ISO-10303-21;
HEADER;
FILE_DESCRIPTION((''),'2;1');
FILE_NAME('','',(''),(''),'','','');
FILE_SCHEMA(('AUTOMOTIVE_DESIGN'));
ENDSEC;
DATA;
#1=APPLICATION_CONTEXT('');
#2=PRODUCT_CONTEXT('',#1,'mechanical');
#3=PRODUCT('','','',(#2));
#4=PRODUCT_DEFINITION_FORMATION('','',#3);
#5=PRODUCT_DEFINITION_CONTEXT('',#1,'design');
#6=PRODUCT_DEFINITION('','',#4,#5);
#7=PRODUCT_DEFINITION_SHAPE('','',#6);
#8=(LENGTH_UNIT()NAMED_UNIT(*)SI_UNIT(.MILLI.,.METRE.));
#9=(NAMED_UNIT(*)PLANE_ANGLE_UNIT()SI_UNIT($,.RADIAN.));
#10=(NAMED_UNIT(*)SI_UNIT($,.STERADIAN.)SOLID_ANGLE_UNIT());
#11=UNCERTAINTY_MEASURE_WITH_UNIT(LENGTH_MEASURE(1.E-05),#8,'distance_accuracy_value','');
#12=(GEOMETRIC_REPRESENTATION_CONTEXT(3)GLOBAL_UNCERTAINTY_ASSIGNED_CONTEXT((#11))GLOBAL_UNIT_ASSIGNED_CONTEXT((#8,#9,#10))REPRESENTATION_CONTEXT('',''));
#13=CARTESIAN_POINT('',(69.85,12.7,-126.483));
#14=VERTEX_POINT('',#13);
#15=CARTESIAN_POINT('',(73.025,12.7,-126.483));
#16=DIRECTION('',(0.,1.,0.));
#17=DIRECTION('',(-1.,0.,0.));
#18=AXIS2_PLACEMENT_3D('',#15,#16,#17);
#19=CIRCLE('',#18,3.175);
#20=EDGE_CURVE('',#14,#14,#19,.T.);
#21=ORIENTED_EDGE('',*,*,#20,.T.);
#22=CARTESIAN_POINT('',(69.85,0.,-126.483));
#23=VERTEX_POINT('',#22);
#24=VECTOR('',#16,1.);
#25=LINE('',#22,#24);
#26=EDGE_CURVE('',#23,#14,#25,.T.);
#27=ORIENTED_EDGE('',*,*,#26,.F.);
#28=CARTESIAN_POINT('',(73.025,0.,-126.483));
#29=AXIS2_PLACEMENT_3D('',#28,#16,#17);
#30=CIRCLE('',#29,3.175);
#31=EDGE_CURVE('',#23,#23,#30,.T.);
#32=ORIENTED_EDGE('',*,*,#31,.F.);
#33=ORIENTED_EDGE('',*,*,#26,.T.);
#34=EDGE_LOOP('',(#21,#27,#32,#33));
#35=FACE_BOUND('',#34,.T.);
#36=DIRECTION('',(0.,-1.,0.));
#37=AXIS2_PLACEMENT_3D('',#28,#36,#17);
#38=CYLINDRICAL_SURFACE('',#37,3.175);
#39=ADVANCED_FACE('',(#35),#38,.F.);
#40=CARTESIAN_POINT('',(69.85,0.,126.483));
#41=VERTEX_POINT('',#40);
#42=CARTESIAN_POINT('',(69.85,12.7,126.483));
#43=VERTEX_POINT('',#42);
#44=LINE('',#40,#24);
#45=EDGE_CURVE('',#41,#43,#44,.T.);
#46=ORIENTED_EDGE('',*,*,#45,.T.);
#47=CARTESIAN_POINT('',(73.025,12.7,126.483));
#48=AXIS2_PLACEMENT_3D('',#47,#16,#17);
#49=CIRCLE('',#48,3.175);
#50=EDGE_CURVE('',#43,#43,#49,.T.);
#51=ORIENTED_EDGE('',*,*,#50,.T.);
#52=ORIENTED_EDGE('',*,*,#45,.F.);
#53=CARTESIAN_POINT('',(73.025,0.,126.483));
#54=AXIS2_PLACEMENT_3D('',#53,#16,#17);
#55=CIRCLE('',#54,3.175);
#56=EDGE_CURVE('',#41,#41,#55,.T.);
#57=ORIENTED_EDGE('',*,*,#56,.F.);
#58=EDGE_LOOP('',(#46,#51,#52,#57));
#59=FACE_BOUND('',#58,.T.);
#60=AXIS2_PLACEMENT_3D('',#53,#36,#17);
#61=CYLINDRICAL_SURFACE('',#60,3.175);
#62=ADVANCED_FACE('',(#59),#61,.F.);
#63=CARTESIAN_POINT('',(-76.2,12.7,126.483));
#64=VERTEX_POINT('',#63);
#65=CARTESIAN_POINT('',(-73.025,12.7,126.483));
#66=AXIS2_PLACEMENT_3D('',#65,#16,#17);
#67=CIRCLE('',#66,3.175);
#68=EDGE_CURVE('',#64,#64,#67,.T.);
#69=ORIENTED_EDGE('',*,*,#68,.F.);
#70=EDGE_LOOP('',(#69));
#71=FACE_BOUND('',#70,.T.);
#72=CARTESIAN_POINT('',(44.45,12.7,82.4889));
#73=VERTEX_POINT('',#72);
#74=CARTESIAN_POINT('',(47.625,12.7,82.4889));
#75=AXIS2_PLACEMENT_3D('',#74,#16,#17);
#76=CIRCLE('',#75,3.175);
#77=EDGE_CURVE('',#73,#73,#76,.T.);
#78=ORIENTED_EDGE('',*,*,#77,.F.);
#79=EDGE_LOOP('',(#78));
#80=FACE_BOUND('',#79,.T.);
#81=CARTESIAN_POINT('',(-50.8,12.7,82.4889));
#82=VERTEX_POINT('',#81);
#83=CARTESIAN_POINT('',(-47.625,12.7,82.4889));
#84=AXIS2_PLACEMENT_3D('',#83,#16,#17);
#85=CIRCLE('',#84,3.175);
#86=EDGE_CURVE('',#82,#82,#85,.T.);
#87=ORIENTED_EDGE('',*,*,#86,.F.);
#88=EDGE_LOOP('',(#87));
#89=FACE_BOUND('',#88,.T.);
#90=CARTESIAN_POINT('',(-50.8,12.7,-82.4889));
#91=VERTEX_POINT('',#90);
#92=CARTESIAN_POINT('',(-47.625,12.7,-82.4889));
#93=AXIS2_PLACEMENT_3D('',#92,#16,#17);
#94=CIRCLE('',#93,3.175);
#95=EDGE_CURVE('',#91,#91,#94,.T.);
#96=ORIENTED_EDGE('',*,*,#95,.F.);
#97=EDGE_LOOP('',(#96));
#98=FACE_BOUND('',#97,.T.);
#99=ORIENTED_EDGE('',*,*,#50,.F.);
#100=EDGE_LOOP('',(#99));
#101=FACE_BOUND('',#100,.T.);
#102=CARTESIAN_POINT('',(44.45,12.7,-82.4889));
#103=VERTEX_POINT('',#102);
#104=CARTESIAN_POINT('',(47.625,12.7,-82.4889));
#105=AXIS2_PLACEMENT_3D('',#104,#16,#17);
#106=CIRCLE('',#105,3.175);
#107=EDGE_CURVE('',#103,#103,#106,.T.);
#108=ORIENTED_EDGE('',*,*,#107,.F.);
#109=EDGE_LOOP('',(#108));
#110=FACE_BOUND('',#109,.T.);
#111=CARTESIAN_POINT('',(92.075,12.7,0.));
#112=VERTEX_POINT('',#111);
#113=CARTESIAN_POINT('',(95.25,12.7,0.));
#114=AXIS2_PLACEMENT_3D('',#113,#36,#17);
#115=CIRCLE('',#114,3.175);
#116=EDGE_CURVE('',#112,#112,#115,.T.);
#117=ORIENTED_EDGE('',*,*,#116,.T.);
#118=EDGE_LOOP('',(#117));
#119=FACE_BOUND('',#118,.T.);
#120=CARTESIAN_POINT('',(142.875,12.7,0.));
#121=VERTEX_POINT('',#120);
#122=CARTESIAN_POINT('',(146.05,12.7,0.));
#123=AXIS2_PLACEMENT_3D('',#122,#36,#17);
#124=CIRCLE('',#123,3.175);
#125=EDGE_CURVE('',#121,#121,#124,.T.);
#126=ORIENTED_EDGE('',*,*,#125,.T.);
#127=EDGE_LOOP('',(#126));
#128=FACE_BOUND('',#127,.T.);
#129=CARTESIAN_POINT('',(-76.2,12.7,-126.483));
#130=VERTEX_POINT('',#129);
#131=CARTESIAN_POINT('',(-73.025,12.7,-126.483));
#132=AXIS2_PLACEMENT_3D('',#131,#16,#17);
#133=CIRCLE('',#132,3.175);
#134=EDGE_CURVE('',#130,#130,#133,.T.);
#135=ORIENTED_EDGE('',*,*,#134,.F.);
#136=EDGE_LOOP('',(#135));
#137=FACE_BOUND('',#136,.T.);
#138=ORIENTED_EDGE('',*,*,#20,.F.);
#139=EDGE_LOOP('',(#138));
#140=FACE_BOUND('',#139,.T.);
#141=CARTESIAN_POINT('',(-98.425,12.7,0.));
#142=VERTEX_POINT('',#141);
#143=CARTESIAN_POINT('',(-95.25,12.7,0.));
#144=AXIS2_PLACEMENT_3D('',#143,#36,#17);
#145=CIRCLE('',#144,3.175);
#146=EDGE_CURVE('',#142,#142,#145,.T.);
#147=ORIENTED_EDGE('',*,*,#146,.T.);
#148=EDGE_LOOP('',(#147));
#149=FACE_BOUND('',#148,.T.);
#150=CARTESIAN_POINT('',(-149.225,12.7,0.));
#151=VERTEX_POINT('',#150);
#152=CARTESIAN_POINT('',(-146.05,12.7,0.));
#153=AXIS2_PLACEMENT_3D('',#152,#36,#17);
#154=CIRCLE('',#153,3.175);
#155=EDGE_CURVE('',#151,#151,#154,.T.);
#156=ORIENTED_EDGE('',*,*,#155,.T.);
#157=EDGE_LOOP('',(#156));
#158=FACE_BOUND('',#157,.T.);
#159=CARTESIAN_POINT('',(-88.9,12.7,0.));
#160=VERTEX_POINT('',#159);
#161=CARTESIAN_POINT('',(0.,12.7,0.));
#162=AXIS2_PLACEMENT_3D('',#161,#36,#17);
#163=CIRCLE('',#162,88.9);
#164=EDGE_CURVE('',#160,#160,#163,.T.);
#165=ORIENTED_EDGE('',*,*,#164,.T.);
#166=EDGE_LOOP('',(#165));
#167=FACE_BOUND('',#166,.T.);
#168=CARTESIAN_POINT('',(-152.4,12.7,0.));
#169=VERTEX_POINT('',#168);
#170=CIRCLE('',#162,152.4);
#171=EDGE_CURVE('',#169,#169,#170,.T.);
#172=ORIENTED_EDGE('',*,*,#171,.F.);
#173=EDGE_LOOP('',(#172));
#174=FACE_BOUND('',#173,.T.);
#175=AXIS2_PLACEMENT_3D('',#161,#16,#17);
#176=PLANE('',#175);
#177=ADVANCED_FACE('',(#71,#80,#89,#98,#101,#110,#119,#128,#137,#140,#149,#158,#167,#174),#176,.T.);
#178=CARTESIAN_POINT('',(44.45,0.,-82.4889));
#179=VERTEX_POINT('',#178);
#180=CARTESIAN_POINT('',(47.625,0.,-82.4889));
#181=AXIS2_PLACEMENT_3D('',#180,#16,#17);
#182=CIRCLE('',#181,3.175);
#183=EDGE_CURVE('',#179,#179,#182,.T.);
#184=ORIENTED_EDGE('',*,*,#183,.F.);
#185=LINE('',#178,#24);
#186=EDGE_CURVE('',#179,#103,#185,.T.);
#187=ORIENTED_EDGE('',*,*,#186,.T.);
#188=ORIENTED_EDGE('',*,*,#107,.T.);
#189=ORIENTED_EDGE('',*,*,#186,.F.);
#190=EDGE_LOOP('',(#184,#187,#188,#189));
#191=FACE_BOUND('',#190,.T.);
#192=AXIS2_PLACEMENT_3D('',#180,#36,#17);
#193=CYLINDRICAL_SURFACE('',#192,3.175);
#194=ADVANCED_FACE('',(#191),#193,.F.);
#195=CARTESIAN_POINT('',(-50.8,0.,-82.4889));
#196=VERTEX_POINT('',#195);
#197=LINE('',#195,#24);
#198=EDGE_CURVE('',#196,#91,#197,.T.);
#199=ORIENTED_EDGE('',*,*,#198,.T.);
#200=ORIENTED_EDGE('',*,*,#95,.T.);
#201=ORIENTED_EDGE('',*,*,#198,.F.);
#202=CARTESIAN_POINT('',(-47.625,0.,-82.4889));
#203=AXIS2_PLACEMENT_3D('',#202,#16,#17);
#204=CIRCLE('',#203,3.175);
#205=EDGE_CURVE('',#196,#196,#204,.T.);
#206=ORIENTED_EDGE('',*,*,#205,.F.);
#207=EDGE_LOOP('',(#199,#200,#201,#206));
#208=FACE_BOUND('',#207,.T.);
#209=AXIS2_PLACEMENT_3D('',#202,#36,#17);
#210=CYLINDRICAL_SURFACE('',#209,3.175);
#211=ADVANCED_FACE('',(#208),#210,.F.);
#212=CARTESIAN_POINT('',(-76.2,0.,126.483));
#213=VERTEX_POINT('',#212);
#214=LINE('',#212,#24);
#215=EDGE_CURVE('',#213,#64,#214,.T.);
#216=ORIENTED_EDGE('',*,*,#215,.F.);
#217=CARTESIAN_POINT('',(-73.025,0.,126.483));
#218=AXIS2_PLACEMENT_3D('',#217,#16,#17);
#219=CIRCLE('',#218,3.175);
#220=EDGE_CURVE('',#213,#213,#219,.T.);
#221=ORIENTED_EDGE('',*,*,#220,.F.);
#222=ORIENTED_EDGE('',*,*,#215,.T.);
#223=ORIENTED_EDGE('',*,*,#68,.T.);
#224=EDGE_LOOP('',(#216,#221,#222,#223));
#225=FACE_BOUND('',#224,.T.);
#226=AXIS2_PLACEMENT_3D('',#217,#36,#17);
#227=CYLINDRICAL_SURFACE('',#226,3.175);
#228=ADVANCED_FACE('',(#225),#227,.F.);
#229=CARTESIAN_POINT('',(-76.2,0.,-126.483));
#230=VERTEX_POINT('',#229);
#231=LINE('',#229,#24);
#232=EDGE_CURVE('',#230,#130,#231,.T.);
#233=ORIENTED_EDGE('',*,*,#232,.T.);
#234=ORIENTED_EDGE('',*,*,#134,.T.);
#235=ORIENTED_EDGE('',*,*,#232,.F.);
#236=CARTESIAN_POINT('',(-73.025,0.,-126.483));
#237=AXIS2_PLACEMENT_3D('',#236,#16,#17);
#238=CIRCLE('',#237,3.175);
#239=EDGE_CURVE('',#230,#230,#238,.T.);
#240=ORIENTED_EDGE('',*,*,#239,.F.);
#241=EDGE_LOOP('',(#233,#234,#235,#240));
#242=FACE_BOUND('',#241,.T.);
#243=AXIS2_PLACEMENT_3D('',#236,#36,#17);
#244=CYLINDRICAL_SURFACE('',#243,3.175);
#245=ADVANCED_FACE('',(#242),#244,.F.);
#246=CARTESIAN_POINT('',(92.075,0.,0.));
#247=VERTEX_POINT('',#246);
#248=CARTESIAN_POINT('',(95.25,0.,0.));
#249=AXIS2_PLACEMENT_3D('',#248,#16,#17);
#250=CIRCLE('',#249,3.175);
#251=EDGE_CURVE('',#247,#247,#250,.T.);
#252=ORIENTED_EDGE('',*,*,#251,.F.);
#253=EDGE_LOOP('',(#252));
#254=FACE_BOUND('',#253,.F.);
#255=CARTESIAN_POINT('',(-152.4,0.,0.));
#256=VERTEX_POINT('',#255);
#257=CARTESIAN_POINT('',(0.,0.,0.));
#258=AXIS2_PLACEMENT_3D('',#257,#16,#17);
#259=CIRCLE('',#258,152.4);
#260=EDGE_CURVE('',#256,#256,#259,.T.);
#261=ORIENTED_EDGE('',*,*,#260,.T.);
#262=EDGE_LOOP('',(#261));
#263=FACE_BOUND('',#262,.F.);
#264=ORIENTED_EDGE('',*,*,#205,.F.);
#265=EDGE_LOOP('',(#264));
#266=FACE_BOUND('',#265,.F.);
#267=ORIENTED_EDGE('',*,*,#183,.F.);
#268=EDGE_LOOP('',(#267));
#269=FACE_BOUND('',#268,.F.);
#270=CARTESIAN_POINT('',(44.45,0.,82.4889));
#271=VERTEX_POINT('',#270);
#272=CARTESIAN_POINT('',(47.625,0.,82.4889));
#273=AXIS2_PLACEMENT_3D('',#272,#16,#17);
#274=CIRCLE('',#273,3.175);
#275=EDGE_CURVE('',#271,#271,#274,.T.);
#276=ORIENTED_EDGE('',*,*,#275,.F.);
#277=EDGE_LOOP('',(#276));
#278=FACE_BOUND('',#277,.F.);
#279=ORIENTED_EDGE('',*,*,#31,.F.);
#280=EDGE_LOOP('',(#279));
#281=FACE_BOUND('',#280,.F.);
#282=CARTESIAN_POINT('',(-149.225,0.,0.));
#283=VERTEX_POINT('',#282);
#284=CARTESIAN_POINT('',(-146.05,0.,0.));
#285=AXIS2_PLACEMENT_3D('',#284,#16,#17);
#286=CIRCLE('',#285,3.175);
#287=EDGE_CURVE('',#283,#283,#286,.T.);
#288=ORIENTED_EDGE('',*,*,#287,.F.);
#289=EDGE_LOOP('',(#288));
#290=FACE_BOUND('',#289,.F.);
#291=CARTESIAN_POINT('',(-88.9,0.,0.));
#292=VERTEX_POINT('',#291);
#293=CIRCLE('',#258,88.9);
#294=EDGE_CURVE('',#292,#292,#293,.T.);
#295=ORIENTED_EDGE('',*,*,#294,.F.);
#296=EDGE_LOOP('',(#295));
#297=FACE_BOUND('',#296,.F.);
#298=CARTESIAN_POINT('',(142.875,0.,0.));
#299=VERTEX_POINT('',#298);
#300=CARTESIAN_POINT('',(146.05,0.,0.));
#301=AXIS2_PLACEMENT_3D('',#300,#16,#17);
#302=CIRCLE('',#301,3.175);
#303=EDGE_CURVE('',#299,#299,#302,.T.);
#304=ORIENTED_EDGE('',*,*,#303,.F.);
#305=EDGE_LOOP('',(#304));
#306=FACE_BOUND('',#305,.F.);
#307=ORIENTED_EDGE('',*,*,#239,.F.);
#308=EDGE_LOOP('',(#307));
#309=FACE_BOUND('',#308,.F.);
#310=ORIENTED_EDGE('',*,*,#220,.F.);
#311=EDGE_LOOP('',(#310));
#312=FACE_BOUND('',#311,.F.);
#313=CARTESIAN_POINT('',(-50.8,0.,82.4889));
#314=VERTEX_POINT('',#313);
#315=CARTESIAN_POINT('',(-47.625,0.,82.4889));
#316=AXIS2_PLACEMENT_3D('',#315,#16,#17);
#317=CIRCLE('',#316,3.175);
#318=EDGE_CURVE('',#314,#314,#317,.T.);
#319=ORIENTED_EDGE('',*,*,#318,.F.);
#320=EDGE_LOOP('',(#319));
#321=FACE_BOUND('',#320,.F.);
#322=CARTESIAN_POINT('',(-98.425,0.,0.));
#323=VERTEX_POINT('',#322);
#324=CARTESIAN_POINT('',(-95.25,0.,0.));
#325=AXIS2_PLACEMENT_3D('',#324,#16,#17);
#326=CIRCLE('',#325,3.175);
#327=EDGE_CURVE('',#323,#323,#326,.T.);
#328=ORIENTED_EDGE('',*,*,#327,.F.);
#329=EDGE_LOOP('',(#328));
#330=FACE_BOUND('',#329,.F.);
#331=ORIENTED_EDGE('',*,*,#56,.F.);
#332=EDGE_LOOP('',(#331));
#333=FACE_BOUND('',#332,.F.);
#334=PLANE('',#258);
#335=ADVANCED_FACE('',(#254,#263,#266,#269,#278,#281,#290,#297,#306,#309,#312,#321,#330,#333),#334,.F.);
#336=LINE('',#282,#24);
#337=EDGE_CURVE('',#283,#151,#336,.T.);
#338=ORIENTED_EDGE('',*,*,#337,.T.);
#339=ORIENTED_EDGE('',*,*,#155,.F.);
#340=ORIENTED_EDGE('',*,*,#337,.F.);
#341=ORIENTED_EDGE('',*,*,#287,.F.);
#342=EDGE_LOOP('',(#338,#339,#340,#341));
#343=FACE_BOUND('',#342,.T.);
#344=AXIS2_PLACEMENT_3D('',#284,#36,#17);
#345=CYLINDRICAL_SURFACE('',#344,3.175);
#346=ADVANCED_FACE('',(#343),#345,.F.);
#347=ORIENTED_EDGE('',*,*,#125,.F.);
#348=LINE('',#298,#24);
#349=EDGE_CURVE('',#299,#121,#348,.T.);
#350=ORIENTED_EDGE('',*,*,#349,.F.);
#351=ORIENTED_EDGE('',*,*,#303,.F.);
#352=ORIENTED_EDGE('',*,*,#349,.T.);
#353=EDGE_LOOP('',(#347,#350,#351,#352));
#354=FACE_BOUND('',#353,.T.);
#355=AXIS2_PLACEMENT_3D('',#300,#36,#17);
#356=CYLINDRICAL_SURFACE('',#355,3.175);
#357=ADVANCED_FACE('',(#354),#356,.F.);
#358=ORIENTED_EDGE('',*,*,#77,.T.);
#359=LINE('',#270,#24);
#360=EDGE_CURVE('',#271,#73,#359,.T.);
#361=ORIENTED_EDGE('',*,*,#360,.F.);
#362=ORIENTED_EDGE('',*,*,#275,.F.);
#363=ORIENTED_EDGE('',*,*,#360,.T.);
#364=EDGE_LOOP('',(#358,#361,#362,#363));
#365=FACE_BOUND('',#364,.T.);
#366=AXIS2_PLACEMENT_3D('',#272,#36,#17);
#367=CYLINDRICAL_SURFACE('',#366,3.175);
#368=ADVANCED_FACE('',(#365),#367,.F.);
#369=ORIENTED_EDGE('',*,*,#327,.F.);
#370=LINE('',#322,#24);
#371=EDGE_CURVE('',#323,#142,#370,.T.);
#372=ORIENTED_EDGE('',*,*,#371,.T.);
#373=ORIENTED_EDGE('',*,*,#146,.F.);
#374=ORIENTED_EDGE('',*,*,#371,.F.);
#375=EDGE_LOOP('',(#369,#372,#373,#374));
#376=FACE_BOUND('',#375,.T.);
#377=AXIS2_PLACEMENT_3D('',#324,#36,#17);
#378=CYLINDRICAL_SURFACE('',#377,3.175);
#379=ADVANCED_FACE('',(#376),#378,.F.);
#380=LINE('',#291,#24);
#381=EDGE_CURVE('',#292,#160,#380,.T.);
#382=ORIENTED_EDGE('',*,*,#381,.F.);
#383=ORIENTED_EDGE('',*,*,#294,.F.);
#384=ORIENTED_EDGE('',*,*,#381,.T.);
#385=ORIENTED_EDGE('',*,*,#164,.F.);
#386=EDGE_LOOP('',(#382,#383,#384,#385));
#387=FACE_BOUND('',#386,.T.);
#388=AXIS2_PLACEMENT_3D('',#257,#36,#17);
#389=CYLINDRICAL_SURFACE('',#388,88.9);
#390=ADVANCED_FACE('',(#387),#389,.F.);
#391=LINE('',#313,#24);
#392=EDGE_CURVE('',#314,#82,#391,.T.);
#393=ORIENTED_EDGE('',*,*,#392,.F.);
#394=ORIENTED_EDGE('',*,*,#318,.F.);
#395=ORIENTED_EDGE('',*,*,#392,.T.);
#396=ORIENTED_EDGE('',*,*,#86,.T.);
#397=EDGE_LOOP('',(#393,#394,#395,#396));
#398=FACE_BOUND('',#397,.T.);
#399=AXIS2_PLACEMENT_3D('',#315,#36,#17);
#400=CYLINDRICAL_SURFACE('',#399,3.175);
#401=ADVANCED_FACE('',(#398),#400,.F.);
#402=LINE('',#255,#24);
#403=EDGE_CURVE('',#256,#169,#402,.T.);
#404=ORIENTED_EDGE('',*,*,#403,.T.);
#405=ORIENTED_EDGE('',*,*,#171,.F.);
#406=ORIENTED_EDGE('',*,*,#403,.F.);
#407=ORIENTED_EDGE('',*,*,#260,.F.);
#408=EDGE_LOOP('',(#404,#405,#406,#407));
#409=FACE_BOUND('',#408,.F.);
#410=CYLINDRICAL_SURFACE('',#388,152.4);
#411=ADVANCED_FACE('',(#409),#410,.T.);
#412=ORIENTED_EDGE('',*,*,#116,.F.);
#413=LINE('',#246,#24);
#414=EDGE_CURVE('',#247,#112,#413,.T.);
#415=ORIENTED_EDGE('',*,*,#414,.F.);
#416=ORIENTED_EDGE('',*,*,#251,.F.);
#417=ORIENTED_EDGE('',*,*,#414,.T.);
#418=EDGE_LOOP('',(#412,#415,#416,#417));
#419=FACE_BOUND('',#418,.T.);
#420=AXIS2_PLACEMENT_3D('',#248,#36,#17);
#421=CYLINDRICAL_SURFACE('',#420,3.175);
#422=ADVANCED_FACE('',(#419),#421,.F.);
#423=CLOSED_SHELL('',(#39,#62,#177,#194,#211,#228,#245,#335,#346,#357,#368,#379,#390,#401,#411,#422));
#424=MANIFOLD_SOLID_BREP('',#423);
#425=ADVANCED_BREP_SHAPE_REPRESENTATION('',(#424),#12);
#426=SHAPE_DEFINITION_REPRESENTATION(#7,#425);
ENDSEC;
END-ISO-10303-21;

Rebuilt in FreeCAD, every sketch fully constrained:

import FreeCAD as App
import Part
import Sketcher

V = App.Vector
Q = App.Units.Quantity

doc = App.newDocument("Part")
body = doc.addObject("PartDesign::Body", "Body")

# Sketch on XZ plane
sketch1 = doc.addObject("Sketcher::SketchObject", "Sketch")
body.addObject(sketch1)
sketch1.AttachmentSupport = (doc.XZ_Plane, [""])
sketch1.MapMode = "FlatFace"
sketch1.addGeometry(Part.Circle(V(0, 0, 0), V(0, 0, 1), 152.4), False)
sketch1.addGeometry(Part.Circle(V(-146.1, 0, 0), V(0, 0, 1), 3.2), False)
sketch1.addGeometry(Part.Circle(V(0, 0, 0), V(0, 0, 1), 88.9), False)
sketch1.addGeometry(Part.Circle(V(-95.2, 0, 0), V(0, 0, 1), 3.2), False)
sketch1.addGeometry(Part.Circle(V(-73, -126.5, 0), V(0, 0, 1), 3.2), False)
sketch1.addGeometry(Part.Circle(V(73, -126.5, 0), V(0, 0, 1), 3.2), False)
sketch1.addGeometry(Part.Circle(V(-73, 126.5, 0), V(0, 0, 1), 3.2), False)
sketch1.addGeometry(Part.Circle(V(-47.6, -82.5, 0), V(0, 0, 1), 3.2), False)
sketch1.addGeometry(Part.Circle(V(73, 126.5, 0), V(0, 0, 1), 3.2), False)
sketch1.addGeometry(Part.Circle(V(47.6, -82.5, 0), V(0, 0, 1), 3.2), False)
sketch1.addGeometry(Part.Circle(V(-47.6, 82.5, 0), V(0, 0, 1), 3.2), False)
sketch1.addGeometry(Part.Circle(V(146.1, 0, 0), V(0, 0, 1), 3.2), False)
sketch1.addGeometry(Part.Circle(V(47.6, 82.5, 0), V(0, 0, 1), 3.2), False)
sketch1.addGeometry(Part.Circle(V(95.2, 0, 0), V(0, 0, 1), 3.2), False)
sketch1.addConstraint(Sketcher.Constraint("Coincident", 0, 3, -1, 1))
sketch1.addConstraint(Sketcher.Constraint("Coincident", 2, 3, -1, 1))
sketch1.addConstraint(Sketcher.Constraint("Equal", 1, 3))
sketch1.addConstraint(Sketcher.Constraint("Equal", 3, 4))
sketch1.addConstraint(Sketcher.Constraint("Equal", 4, 5))
sketch1.addConstraint(Sketcher.Constraint("Equal", 5, 6))
sketch1.addConstraint(Sketcher.Constraint("Equal", 6, 7))
sketch1.addConstraint(Sketcher.Constraint("Equal", 7, 8))
sketch1.addConstraint(Sketcher.Constraint("Equal", 8, 9))
sketch1.addConstraint(Sketcher.Constraint("Equal", 9, 10))
sketch1.addConstraint(Sketcher.Constraint("Equal", 10, 11))
sketch1.addConstraint(Sketcher.Constraint("Equal", 11, 12))
sketch1.addConstraint(Sketcher.Constraint("Equal", 12, 13))
sketch1.addConstraint(Sketcher.Constraint("Symmetric", 5, 3, 6, 3, -1, 1))
sketch1.addConstraint(Sketcher.Constraint("Symmetric", 4, 3, 8, 3, -1, 1))
sketch1.addConstraint(Sketcher.Constraint("Symmetric", 9, 3, 10, 3, -1, 1))
sketch1.addConstraint(Sketcher.Constraint("Symmetric", 1, 3, 11, 3, -1, 1))
sketch1.addConstraint(Sketcher.Constraint("Symmetric", 7, 3, 12, 3, -1, 1))
sketch1.addConstraint(Sketcher.Constraint("Symmetric", 3, 3, 13, 3, -1, 1))
sketch1.addConstraint(Sketcher.Constraint("Symmetric", 4, 3, 5, 3, -2))
sketch1.addConstraint(Sketcher.Constraint("Symmetric", 7, 3, 9, 3, -2))
sketch1.addConstraint(Sketcher.Constraint("PointOnObject", 1, 3, -1))
sketch1.addConstraint(Sketcher.Constraint("PointOnObject", 3, 3, -1))
sketch1.addConstraint(Sketcher.Constraint("Diameter", 0, Q("12 in")))
sketch1.addConstraint(Sketcher.Constraint("Diameter", 2, Q("7 in")))
sketch1.addConstraint(Sketcher.Constraint("Diameter", 1, Q("0.25 in")))
sketch1.addConstraint(Sketcher.Constraint("DistanceX", 4, 3, 7, 3, Q("1 in")))
sketch1.addConstraint(Sketcher.Constraint("DistanceX", 1, 3, -1, 1, Q("5.75 in")))
sketch1.addConstraint(Sketcher.Constraint("DistanceX", 3, 3, -1, 1, Q("3.75 in")))
sketch1.addConstraint(Sketcher.Constraint("DistanceX", 4, 3, 5, 3, Q("5.75 in")))
sketch1.addConstraint(Sketcher.Constraint("DistanceY", 7, 3, -1, 1, Q("3.2476 in")))
sketch1.addConstraint(Sketcher.Constraint("DistanceY", 4, 3, 6, 3, Q("9.9593 in")))
pad1 = doc.addObject("PartDesign::Pad", "Pad")
body.addObject(pad1)
pad1.Profile = sketch1
pad1.Length = Q("0.5 in")
pad1.Reversed = True

doc.recompute()
